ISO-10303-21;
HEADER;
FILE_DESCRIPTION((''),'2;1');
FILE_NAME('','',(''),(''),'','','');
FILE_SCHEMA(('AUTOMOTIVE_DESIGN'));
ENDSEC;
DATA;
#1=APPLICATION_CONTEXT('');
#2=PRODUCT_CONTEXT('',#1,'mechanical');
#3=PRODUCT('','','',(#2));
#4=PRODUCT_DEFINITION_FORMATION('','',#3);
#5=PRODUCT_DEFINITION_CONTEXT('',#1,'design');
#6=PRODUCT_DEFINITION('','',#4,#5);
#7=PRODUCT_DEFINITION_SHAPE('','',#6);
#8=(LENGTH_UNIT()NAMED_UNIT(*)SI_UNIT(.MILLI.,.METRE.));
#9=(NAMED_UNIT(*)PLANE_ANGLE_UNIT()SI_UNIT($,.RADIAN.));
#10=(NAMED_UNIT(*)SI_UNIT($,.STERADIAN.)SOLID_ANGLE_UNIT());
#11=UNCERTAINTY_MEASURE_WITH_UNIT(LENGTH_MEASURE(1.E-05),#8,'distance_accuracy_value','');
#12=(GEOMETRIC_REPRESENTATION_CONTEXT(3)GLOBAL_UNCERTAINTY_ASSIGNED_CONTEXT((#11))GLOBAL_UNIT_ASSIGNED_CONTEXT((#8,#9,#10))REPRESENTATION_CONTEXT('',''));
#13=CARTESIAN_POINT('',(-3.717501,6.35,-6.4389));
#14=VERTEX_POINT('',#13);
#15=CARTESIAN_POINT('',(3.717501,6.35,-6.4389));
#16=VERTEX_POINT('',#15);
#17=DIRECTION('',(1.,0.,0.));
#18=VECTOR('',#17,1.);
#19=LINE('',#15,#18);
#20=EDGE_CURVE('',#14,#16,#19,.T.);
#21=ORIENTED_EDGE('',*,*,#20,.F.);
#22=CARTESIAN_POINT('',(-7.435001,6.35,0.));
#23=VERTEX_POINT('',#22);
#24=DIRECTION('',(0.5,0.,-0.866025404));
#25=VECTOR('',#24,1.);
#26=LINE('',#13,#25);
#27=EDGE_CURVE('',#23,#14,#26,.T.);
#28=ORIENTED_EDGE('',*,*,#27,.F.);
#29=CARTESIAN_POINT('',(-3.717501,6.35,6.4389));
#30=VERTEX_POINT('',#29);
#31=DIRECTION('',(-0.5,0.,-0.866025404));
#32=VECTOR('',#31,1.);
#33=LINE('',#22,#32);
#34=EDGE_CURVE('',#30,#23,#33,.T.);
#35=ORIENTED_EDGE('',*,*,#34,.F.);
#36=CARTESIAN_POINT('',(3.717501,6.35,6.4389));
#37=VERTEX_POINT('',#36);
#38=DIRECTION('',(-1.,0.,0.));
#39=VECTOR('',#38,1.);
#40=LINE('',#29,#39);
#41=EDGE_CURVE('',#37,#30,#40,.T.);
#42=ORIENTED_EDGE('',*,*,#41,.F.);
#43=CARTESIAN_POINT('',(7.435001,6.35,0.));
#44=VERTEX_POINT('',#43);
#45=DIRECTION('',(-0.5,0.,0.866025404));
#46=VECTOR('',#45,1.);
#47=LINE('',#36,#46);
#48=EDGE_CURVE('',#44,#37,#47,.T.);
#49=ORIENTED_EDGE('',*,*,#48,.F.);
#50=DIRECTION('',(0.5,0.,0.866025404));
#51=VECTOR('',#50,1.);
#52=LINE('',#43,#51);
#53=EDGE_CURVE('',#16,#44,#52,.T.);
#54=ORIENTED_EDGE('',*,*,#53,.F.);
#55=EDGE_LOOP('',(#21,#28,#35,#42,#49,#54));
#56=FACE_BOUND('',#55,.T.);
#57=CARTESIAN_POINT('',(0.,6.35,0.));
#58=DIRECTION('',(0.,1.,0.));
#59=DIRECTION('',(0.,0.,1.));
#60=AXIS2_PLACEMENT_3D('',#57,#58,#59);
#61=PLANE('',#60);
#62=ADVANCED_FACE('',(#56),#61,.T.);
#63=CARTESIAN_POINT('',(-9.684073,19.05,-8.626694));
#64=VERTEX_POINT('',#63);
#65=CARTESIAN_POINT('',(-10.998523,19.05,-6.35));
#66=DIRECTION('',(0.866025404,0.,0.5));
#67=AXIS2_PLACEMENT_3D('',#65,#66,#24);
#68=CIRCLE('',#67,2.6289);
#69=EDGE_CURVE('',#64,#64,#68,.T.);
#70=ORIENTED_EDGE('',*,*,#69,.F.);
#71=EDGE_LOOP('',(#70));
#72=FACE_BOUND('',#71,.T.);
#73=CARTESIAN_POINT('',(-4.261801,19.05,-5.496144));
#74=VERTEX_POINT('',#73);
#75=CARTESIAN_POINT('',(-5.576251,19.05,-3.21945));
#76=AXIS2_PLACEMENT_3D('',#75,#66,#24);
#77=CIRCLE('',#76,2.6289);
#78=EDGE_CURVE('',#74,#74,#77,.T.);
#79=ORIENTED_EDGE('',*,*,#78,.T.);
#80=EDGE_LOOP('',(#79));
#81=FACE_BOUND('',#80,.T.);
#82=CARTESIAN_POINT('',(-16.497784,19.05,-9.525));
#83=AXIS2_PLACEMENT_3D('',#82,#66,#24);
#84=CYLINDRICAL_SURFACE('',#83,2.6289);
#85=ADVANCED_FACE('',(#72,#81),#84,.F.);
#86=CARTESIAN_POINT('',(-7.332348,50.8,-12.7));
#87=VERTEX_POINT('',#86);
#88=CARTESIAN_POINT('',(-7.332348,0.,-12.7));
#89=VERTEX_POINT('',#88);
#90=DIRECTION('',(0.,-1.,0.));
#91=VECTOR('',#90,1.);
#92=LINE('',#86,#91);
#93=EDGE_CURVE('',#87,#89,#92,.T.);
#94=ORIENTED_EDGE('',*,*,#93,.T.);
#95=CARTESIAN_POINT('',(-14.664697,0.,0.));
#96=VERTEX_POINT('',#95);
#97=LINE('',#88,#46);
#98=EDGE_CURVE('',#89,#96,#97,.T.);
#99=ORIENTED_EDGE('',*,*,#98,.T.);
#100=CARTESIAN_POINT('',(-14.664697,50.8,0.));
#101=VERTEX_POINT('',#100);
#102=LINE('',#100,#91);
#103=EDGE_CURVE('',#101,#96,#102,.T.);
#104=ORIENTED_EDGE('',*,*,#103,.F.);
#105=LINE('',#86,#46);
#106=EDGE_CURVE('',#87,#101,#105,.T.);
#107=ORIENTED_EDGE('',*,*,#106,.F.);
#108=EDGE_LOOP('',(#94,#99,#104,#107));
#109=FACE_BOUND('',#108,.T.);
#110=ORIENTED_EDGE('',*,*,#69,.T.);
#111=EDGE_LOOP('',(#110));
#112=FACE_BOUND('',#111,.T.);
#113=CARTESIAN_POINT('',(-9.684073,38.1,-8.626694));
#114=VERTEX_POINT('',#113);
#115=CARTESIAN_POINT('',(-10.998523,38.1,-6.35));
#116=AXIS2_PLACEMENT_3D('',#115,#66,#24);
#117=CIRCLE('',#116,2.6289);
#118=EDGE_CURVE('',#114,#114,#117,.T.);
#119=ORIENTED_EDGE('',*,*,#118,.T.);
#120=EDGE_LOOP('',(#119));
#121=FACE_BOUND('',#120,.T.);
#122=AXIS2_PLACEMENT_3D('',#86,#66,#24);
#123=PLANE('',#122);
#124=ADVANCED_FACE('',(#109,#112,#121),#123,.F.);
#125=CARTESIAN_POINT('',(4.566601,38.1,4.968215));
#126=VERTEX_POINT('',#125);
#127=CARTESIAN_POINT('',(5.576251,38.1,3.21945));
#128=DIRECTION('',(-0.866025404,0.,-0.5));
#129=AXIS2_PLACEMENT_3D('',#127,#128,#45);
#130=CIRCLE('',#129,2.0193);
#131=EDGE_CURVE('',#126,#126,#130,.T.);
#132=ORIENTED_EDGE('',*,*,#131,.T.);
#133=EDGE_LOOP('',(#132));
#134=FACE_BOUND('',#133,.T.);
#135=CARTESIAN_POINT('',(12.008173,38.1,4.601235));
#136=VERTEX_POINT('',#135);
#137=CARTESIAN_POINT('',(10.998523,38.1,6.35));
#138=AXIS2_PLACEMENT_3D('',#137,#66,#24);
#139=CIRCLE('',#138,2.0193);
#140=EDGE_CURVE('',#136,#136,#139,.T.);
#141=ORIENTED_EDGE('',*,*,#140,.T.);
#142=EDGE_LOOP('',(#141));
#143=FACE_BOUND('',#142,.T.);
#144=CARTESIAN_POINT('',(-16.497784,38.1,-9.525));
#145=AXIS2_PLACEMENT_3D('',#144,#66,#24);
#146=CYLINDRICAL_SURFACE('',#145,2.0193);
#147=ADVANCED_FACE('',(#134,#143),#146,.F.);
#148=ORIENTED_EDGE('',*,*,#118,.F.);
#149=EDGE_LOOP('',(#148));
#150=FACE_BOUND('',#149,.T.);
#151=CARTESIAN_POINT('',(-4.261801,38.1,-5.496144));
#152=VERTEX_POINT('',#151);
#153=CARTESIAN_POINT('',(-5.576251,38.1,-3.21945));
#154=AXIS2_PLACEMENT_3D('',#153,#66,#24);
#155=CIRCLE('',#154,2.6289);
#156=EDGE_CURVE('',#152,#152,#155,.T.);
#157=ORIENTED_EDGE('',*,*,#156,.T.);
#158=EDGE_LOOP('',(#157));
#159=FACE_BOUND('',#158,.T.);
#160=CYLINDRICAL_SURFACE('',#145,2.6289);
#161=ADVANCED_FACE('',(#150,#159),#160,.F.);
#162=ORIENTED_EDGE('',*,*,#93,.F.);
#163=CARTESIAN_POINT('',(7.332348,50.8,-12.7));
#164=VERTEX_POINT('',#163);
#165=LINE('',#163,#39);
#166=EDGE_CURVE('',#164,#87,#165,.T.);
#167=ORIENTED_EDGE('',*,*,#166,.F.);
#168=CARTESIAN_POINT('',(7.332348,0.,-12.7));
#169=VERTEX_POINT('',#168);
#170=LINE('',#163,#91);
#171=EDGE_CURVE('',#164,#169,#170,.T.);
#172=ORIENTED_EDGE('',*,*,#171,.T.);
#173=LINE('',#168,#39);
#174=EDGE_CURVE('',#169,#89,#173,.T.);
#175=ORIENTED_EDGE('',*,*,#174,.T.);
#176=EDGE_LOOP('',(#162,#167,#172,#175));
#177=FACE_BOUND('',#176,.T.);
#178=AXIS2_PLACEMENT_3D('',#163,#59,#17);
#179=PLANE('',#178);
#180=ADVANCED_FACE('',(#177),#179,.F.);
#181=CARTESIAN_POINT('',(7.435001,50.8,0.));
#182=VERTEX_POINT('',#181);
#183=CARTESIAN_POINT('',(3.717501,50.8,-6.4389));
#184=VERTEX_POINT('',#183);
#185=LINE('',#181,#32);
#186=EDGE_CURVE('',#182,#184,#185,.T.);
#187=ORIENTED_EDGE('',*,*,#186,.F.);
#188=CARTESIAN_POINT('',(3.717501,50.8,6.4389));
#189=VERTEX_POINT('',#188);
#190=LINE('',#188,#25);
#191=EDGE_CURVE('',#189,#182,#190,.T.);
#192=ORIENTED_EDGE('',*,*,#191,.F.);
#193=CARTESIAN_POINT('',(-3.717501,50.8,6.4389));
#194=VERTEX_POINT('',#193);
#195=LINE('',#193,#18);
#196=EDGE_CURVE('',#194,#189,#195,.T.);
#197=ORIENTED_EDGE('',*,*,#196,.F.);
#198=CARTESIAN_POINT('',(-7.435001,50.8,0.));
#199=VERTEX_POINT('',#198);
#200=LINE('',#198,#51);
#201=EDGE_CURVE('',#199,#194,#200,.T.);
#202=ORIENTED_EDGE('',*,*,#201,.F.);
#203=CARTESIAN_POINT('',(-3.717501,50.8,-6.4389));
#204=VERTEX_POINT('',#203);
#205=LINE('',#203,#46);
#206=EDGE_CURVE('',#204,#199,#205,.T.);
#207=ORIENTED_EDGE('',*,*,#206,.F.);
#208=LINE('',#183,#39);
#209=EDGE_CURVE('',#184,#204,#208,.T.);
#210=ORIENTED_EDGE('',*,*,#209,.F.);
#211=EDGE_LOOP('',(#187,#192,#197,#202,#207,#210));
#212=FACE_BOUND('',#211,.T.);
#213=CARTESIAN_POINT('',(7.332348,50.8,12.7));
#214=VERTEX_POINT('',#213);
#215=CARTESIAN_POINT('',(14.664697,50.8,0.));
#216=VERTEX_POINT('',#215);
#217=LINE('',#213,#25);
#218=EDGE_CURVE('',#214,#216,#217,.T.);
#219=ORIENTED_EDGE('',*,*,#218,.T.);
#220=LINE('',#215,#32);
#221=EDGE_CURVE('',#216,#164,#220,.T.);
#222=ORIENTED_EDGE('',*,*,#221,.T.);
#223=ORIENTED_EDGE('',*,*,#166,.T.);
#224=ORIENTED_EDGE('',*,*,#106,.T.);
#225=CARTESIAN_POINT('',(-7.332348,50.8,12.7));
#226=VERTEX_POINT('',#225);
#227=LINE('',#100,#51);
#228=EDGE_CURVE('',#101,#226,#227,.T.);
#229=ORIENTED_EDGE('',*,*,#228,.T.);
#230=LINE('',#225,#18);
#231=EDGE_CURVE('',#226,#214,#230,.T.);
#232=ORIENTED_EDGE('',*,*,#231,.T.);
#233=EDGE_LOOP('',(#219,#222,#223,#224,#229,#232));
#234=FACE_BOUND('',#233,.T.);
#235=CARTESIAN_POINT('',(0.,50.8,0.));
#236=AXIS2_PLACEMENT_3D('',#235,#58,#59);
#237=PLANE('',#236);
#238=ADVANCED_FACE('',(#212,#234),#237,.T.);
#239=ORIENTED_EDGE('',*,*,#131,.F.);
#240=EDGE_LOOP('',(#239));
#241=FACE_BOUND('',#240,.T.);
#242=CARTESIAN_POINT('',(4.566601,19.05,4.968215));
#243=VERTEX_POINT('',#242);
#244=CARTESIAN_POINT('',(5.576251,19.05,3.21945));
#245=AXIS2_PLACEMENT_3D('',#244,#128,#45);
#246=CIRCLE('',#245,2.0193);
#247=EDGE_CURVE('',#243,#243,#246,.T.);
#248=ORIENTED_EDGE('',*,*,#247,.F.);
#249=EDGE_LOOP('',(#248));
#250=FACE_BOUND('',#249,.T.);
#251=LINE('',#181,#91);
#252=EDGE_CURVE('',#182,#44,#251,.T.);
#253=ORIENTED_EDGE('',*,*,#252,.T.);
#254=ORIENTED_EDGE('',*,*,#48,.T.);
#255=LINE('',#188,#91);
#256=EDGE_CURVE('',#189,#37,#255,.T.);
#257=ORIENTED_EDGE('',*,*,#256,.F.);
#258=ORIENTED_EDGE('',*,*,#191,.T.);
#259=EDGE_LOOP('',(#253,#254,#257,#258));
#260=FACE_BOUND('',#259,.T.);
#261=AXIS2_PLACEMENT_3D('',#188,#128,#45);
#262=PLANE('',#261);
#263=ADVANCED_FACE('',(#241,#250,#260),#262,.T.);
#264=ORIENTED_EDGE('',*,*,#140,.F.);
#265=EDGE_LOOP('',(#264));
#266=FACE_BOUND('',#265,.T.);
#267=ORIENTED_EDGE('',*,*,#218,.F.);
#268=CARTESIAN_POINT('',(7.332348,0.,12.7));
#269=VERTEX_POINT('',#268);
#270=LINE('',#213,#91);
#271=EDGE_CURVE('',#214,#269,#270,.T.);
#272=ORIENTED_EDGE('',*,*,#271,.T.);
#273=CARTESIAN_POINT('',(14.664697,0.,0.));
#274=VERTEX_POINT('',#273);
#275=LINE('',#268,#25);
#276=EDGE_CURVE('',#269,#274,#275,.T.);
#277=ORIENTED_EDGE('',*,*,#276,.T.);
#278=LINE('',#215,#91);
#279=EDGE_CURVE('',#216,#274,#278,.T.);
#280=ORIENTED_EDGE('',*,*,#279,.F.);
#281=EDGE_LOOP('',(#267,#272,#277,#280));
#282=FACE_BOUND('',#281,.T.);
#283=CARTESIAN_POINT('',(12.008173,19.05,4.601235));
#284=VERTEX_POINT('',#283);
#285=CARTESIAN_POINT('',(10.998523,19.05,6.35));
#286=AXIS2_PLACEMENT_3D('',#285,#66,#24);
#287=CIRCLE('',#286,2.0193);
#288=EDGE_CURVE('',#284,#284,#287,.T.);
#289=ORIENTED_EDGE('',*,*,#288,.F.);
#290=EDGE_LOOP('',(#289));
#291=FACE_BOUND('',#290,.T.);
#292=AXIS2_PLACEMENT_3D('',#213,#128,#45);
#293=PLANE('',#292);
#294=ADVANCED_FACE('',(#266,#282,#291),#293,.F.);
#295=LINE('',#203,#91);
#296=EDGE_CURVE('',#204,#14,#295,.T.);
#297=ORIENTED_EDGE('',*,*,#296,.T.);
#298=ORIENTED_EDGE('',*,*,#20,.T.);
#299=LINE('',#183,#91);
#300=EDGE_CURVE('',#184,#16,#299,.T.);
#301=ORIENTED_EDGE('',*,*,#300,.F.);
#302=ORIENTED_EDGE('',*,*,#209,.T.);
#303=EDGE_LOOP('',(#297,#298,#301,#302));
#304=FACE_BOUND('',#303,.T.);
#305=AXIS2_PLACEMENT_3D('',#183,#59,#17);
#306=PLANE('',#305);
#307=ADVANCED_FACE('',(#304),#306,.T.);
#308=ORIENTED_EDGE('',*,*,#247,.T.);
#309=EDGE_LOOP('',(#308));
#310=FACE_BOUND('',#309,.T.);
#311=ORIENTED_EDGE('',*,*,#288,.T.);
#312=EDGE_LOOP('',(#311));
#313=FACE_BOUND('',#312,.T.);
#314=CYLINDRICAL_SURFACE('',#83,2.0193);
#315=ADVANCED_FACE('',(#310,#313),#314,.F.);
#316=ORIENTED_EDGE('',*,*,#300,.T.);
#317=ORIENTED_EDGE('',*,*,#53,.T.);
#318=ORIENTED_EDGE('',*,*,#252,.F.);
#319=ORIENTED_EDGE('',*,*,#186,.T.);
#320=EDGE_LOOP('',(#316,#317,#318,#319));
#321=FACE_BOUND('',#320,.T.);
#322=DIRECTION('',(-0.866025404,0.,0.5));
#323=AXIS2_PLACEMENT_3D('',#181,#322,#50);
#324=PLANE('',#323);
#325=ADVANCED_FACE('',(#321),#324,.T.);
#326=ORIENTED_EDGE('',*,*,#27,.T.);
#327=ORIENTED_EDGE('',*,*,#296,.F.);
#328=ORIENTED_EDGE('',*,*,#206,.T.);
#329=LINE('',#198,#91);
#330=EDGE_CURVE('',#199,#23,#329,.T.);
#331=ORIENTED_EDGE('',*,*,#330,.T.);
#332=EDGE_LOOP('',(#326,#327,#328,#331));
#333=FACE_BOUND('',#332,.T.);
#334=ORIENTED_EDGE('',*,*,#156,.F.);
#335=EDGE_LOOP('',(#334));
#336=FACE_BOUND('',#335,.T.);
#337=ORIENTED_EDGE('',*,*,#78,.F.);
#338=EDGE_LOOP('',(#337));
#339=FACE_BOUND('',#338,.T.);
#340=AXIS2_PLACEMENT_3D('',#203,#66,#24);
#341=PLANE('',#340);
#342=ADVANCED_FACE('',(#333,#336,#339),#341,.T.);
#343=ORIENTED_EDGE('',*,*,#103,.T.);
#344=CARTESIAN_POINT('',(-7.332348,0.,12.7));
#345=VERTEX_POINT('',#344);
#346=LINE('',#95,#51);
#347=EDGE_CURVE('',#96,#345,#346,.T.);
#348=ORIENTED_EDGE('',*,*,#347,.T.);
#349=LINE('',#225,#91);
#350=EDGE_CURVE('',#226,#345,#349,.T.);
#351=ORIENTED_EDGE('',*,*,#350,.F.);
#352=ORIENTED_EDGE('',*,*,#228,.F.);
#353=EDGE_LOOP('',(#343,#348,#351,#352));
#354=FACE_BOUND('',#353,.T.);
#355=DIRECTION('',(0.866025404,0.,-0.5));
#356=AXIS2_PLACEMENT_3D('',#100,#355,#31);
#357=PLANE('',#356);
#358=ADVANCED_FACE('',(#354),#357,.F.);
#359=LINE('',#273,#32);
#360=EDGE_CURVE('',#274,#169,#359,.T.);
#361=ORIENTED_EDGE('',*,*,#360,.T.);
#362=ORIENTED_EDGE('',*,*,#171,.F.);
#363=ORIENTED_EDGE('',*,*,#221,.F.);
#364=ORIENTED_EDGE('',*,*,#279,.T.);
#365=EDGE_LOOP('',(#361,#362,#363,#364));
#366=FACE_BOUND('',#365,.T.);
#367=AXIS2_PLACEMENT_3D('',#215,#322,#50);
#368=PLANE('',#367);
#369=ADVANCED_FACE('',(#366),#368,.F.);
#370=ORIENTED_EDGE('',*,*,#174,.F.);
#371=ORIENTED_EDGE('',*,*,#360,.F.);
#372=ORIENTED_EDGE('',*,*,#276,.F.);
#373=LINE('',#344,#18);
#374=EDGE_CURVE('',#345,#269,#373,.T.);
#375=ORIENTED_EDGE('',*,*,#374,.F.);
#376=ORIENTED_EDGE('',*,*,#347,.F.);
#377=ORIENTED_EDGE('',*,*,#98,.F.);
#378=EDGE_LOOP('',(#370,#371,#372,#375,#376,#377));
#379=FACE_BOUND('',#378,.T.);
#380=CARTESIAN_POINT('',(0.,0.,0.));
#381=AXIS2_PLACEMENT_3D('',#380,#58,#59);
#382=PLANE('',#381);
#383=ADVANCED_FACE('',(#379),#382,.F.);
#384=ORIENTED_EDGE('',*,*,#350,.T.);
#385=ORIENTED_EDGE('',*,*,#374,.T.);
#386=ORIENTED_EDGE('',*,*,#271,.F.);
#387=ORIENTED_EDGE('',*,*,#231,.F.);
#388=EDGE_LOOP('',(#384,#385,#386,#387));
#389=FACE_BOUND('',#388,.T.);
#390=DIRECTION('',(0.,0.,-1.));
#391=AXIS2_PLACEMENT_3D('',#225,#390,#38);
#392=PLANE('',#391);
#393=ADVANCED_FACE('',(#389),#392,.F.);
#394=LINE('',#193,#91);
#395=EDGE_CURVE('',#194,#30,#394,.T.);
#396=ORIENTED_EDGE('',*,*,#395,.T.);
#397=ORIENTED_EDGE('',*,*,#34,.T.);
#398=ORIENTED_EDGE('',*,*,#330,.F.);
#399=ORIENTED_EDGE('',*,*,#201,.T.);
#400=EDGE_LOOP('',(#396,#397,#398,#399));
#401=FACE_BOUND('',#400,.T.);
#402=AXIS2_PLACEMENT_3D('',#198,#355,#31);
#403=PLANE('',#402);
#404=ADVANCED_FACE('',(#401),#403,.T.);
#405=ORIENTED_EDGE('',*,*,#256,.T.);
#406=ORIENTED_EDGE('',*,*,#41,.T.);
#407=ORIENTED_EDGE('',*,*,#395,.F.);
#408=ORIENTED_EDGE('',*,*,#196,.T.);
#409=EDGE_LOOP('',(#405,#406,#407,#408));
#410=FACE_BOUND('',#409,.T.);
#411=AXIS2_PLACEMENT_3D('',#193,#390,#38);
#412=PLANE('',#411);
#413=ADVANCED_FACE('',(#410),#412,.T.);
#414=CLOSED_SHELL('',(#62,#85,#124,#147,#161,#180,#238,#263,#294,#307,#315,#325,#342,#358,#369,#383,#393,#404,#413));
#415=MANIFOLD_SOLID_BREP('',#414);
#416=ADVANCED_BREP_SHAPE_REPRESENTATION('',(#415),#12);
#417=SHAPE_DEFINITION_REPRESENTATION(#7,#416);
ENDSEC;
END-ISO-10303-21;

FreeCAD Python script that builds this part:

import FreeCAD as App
import Part
import Sketcher
from FreeCAD import Vector
Q = App.Units.Quantity


def add_polygon(sketch, points):
    """Adds a closed chain of lines whose ends are joined by coincident constraints."""
    first, n = sketch.GeometryCount, len(points)
    for a, b in zip(points, points[1:] + points[:1]):
        sketch.addGeometry(Part.LineSegment(App.Vector(*a, 0), App.Vector(*b, 0)), False)
    for i in range(n):
        sketch.addConstraint(Sketcher.Constraint("Coincident", first + i, 2, first + (i + 1) % n, 1))

doc = App.newDocument("Part")
body = doc.addObject("PartDesign::Body", "Body")

sketch1 = doc.addObject("Sketcher::SketchObject", "Sketch")
body.addObject(sketch1)
sketch1.AttachmentSupport = (doc.XZ_Plane, [""])
sketch1.MapMode = "FlatFace"
add_polygon(sketch1, [(7, -13), (-7, -13), (-15, 0), (-7, 13), (7, 13), (15, 0)])
add_polygon(sketch1, [(-4, -6), (4, -6), (7, 0), (4, 6), (-4, 6), (-7, 0)])
sketch1.addConstraint([
    Sketcher.Constraint("Horizontal", 0),
    Sketcher.Constraint("Horizontal", 3),
    Sketcher.Constraint("Horizontal", 6),
    Sketcher.Constraint("Horizontal", 9),
    Sketcher.Constraint("Symmetric", 0, 2, 3, 2, -1, 1),
    Sketcher.Constraint("Symmetric", 1, 2, 4, 2, -1, 1),
    Sketcher.Constraint("Symmetric", 6, 2, 9, 2, -1, 1),
    Sketcher.Constraint("Symmetric", 7, 2, 10, 2, -1, 1),
    Sketcher.Constraint("PointOnObject", 1, 2, -1),
    Sketcher.Constraint("PointOnObject", 7, 2, -1),
    Sketcher.Constraint("Parallel", 2, 5),
    Sketcher.Constraint("Parallel", 5, 7),
    Sketcher.Constraint("Parallel", 4, 8),
    Sketcher.Constraint("Parallel", 8, 11),
    Sketcher.Constraint("Vertical", 0, 2, 2, 2),
    Sketcher.Constraint("Angle", 1, Q("120 deg")),
    Sketcher.Constraint("DistanceY", 0, 2, 2, 2, Q("1 in")),
    Sketcher.Constraint("DistanceY", 6, 2, 8, 2, Q("0.507 in")),
    Sketcher.Constraint("DistanceX", 6, 1, 6, 2, Q("7.435001 mm")),
    Sketcher.Constraint("DistanceX", 0, 2, 0, 1, Q("14.664697 mm")),
])
pad1 = doc.addObject("PartDesign::Pad", "Pad")
body.addObject(pad1)
pad1.Profile = sketch1
pad1.Length = Q("2 in")
pad1.Reversed = True

sketch2 = doc.addObject("Sketcher::SketchObject", "Sketch001")
body.addObject(sketch2)
sketch2.AttachmentSupport = (doc.XZ_Plane, [""])
sketch2.MapMode = "FlatFace"
add_polygon(sketch2, [(-4, -6), (4, -6), (7, 0), (4, 6), (-4, 6), (-7, 0)])
sketch2.addConstraint([
    Sketcher.Constraint("Horizontal", 0),
    Sketcher.Constraint("Horizontal", 3),
    Sketcher.Constraint("Symmetric", 0, 2, 3, 2, -1, 1),
    Sketcher.Constraint("Symmetric", 1, 2, 4, 2, -1, 1),
    Sketcher.Constraint("PointOnObject", 1, 2, -1),
    Sketcher.Constraint("Parallel", 2, 5),
    Sketcher.Constraint("Vertical", 0, 2, 2, 2),
    Sketcher.Constraint("Angle", 1, Q("60 deg")),
    Sketcher.Constraint("DistanceY", 0, 2, 2, 2, Q("0.507 in")),
    Sketcher.Constraint("DistanceX", 0, 1, 0, 2, Q("7.435001 mm")),
])
pad2 = doc.addObject("PartDesign::Pad", "Pad001")
body.addObject(pad2)
pad2.Profile = sketch2
pad2.Length = Q("0.25 in")
pad2.Reversed = True

sketch3 = doc.addObject("Sketcher::SketchObject", "Sketch002")
body.addObject(sketch3)
sketch3.Placement = App.Placement(Vector(10.998523, 0, 6.35), App.Rotation(Vector(0.5, 0, -0.866025404), Vector(0, 1, 0), Vector(0.866025404, 0, 0.5), "ZXY"))
sketch3.addGeometry([
    Part.Circle(Vector(0, 19.1, 0), Vector(0, 0, 1), 2),
    Part.Circle(Vector(0, 38.1, 0), Vector(0, 0, 1), 2),
], False)
sketch3.addConstraint([
    Sketcher.Constraint("Equal", 0, 1),
    Sketcher.Constraint("PointOnObject", 0, 3, -2),
    Sketcher.Constraint("PointOnObject", 1, 3, -2),
    Sketcher.Constraint("Diameter", 0, Q("0.159 in")),
    Sketcher.Constraint("DistanceY", -1, 1, 1, 3, Q("1.5 in")),
    Sketcher.Constraint("DistanceY", -1, 1, 0, 3, Q("0.75 in")),
])
pocket1 = doc.addObject("PartDesign::Pocket", "Pocket")
body.addObject(pocket1)
pocket1.Profile = sketch3
pocket1.Type = "ThroughAll"

sketch4 = doc.addObject("Sketcher::SketchObject", "Sketch003")
body.addObject(sketch4)
sketch4.Placement = App.Placement(Vector(-5.576251, 0, -3.21945), App.Rotation(Vector(0.5, 0, -0.866025404), Vector(0, 1, 0), Vector(0.866025404, 0, 0.5), "ZXY"))
sketch4.addGeometry([
    Part.Circle(Vector(0, 38.1, 0), Vector(0, 0, 1), 2.6),
    Part.Circle(Vector(0, 19.1, 0), Vector(0, 0, 1), 2.6),
], False)
sketch4.addConstraint([
    Sketcher.Constraint("Equal", 0, 1),
    Sketcher.Constraint("PointOnObject", 0, 3, -2),
    Sketcher.Constraint("PointOnObject", 1, 3, -2),
    Sketcher.Constraint("Diameter", 0, Q("0.207 in")),
    Sketcher.Constraint("DistanceY", -1, 1, 0, 3, Q("1.5 in")),
    Sketcher.Constraint("DistanceY", -1, 1, 1, 3, Q("0.75 in")),
])
pocket2 = doc.addObject("PartDesign::Pocket", "Pocket001")
body.addObject(pocket2)
pocket2.Profile = sketch4
pocket2.Type = "ThroughAll"

doc.recompute()
